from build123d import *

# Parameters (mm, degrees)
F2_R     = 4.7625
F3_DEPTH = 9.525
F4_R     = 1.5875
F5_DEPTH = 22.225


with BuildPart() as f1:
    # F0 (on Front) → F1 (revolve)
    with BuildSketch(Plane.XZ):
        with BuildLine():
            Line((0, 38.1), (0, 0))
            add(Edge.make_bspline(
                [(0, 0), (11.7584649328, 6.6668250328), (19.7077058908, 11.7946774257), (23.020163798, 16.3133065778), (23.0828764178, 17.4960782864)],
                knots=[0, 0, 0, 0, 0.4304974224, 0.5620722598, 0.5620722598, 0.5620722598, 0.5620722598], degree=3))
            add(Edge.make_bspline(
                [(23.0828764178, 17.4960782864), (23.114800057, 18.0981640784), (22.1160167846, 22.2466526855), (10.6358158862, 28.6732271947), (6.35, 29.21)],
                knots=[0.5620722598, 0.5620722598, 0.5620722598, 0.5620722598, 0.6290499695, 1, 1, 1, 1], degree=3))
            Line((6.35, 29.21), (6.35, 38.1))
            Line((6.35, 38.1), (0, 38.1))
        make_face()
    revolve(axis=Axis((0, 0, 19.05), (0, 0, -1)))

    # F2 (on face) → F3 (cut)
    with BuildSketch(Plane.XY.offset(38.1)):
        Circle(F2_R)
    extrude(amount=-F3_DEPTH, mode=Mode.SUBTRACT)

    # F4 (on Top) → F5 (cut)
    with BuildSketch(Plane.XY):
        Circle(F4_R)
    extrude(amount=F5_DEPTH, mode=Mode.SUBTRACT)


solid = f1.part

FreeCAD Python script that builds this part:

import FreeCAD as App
import Part
import Sketcher
from FreeCAD import Vector
Q = App.Units.Quantity

doc = App.newDocument("Part")
body = doc.addObject("PartDesign::Body", "Body")

# Sketch on XZ plane
sketch1 = body.newObject("Sketcher::SketchObject", "Sketch")
sketch1.AttachmentSupport = (doc.getObject("XZ_Plane"), [""])
sketch1.MapMode = "FlatFace"
sketch1.addGeometry([
    Part.LineSegment(Vector(0, 38.1, 0), Vector(0, 0, 0)),  # 0
    Part.BSplineCurve([Vector(0, 0, 0), Vector(11.758465, 6.666825, 0), Vector(19.707706, 11.794677, 0), Vector(23.020164, 16.313307, 0), Vector(23.082876, 17.496078, 0)], [4, 1, 4], [0, 0.430497422, 0.56207226], False, 3, [1, 1, 1, 1, 1], False),  # 1
    Part.BSplineCurve([Vector(23.082876, 17.496078, 0), Vector(23.1148, 18.098164, 0), Vector(22.116017, 22.246653, 0), Vector(10.635816, 28.673227, 0), Vector(6.35, 29.21, 0)], [4, 1, 4], [0.56207226, 0.62904997, 1], False, 3, [1, 1, 1, 1, 1], False),  # 2
    Part.LineSegment(Vector(6.35, 29.21, 0), Vector(6.35, 38.1, 0)),  # 3
    Part.LineSegment(Vector(6.35, 38.1, 0), Vector(0, 38.1, 0)),  # 4
], False)
sketch1.addConstraint([
    Sketcher.Constraint("Block", 1),
    Sketcher.Constraint("Block", 2),
    Sketcher.Constraint("Coincident", 0, 2, 1, 1),
    Sketcher.Constraint("Coincident", 2, 2, 3, 1),
    Sketcher.Constraint("Coincident", 3, 2, 4, 1),
    Sketcher.Constraint("Coincident", 4, 2, 0, 1),
    Sketcher.Constraint("Vertical", 0),
    Sketcher.Constraint("Vertical", 3),
    Sketcher.Constraint("Horizontal", 4),
    Sketcher.Constraint("DistanceY", 0, 2, 0, 1, Q("1.5 in")),
])
revolution = body.newObject("PartDesign::Revolution", "Revolution")
revolution.Profile = sketch1
revolution.ReferenceAxis = (sketch1, ["V_Axis"])
revolution.Angle = 360

# Sketch on XY plane
sketch2 = body.newObject("Sketcher::SketchObject", "Sketch001")
sketch2.AttachmentSupport = (doc.getObject("XY_Plane"), [""])
sketch2.MapMode = "FlatFace"
sketch2.AttachmentOffset = App.Placement(Vector(0, 0, 1.5 * 25.4), App.Rotation())
sketch2.addGeometry(Part.Circle(Vector(0, 0, 0), Vector(0, 0, 1), 4.8), False)
sketch2.addConstraint([
    Sketcher.Constraint("Coincident", 0, 3, -1, 1),
    Sketcher.Constraint("Diameter", 0, Q("0.375 in")),
])
pocket1 = body.newObject("PartDesign::Pocket", "Pocket")
pocket1.Profile = sketch2
pocket1.Length = Q("0.375 in")

# Sketch on XY plane
sketch3 = body.newObject("Sketcher::SketchObject", "Sketch002")
sketch3.AttachmentSupport = (doc.getObject("XY_Plane"), [""])
sketch3.MapMode = "FlatFace"
sketch3.addGeometry(Part.Circle(Vector(0, 0, 0), Vector(0, 0, 1), 1.6), False)
sketch3.addConstraint([
    Sketcher.Constraint("Coincident", 0, 3, -1, 1),
    Sketcher.Constraint("Diameter", 0, Q("0.125 in")),
])
pocket2 = body.newObject("PartDesign::Pocket", "Pocket001")
pocket2.Profile = sketch3
pocket2.Length = Q("0.875 in")
pocket2.Reversed = True

doc.recompute()
